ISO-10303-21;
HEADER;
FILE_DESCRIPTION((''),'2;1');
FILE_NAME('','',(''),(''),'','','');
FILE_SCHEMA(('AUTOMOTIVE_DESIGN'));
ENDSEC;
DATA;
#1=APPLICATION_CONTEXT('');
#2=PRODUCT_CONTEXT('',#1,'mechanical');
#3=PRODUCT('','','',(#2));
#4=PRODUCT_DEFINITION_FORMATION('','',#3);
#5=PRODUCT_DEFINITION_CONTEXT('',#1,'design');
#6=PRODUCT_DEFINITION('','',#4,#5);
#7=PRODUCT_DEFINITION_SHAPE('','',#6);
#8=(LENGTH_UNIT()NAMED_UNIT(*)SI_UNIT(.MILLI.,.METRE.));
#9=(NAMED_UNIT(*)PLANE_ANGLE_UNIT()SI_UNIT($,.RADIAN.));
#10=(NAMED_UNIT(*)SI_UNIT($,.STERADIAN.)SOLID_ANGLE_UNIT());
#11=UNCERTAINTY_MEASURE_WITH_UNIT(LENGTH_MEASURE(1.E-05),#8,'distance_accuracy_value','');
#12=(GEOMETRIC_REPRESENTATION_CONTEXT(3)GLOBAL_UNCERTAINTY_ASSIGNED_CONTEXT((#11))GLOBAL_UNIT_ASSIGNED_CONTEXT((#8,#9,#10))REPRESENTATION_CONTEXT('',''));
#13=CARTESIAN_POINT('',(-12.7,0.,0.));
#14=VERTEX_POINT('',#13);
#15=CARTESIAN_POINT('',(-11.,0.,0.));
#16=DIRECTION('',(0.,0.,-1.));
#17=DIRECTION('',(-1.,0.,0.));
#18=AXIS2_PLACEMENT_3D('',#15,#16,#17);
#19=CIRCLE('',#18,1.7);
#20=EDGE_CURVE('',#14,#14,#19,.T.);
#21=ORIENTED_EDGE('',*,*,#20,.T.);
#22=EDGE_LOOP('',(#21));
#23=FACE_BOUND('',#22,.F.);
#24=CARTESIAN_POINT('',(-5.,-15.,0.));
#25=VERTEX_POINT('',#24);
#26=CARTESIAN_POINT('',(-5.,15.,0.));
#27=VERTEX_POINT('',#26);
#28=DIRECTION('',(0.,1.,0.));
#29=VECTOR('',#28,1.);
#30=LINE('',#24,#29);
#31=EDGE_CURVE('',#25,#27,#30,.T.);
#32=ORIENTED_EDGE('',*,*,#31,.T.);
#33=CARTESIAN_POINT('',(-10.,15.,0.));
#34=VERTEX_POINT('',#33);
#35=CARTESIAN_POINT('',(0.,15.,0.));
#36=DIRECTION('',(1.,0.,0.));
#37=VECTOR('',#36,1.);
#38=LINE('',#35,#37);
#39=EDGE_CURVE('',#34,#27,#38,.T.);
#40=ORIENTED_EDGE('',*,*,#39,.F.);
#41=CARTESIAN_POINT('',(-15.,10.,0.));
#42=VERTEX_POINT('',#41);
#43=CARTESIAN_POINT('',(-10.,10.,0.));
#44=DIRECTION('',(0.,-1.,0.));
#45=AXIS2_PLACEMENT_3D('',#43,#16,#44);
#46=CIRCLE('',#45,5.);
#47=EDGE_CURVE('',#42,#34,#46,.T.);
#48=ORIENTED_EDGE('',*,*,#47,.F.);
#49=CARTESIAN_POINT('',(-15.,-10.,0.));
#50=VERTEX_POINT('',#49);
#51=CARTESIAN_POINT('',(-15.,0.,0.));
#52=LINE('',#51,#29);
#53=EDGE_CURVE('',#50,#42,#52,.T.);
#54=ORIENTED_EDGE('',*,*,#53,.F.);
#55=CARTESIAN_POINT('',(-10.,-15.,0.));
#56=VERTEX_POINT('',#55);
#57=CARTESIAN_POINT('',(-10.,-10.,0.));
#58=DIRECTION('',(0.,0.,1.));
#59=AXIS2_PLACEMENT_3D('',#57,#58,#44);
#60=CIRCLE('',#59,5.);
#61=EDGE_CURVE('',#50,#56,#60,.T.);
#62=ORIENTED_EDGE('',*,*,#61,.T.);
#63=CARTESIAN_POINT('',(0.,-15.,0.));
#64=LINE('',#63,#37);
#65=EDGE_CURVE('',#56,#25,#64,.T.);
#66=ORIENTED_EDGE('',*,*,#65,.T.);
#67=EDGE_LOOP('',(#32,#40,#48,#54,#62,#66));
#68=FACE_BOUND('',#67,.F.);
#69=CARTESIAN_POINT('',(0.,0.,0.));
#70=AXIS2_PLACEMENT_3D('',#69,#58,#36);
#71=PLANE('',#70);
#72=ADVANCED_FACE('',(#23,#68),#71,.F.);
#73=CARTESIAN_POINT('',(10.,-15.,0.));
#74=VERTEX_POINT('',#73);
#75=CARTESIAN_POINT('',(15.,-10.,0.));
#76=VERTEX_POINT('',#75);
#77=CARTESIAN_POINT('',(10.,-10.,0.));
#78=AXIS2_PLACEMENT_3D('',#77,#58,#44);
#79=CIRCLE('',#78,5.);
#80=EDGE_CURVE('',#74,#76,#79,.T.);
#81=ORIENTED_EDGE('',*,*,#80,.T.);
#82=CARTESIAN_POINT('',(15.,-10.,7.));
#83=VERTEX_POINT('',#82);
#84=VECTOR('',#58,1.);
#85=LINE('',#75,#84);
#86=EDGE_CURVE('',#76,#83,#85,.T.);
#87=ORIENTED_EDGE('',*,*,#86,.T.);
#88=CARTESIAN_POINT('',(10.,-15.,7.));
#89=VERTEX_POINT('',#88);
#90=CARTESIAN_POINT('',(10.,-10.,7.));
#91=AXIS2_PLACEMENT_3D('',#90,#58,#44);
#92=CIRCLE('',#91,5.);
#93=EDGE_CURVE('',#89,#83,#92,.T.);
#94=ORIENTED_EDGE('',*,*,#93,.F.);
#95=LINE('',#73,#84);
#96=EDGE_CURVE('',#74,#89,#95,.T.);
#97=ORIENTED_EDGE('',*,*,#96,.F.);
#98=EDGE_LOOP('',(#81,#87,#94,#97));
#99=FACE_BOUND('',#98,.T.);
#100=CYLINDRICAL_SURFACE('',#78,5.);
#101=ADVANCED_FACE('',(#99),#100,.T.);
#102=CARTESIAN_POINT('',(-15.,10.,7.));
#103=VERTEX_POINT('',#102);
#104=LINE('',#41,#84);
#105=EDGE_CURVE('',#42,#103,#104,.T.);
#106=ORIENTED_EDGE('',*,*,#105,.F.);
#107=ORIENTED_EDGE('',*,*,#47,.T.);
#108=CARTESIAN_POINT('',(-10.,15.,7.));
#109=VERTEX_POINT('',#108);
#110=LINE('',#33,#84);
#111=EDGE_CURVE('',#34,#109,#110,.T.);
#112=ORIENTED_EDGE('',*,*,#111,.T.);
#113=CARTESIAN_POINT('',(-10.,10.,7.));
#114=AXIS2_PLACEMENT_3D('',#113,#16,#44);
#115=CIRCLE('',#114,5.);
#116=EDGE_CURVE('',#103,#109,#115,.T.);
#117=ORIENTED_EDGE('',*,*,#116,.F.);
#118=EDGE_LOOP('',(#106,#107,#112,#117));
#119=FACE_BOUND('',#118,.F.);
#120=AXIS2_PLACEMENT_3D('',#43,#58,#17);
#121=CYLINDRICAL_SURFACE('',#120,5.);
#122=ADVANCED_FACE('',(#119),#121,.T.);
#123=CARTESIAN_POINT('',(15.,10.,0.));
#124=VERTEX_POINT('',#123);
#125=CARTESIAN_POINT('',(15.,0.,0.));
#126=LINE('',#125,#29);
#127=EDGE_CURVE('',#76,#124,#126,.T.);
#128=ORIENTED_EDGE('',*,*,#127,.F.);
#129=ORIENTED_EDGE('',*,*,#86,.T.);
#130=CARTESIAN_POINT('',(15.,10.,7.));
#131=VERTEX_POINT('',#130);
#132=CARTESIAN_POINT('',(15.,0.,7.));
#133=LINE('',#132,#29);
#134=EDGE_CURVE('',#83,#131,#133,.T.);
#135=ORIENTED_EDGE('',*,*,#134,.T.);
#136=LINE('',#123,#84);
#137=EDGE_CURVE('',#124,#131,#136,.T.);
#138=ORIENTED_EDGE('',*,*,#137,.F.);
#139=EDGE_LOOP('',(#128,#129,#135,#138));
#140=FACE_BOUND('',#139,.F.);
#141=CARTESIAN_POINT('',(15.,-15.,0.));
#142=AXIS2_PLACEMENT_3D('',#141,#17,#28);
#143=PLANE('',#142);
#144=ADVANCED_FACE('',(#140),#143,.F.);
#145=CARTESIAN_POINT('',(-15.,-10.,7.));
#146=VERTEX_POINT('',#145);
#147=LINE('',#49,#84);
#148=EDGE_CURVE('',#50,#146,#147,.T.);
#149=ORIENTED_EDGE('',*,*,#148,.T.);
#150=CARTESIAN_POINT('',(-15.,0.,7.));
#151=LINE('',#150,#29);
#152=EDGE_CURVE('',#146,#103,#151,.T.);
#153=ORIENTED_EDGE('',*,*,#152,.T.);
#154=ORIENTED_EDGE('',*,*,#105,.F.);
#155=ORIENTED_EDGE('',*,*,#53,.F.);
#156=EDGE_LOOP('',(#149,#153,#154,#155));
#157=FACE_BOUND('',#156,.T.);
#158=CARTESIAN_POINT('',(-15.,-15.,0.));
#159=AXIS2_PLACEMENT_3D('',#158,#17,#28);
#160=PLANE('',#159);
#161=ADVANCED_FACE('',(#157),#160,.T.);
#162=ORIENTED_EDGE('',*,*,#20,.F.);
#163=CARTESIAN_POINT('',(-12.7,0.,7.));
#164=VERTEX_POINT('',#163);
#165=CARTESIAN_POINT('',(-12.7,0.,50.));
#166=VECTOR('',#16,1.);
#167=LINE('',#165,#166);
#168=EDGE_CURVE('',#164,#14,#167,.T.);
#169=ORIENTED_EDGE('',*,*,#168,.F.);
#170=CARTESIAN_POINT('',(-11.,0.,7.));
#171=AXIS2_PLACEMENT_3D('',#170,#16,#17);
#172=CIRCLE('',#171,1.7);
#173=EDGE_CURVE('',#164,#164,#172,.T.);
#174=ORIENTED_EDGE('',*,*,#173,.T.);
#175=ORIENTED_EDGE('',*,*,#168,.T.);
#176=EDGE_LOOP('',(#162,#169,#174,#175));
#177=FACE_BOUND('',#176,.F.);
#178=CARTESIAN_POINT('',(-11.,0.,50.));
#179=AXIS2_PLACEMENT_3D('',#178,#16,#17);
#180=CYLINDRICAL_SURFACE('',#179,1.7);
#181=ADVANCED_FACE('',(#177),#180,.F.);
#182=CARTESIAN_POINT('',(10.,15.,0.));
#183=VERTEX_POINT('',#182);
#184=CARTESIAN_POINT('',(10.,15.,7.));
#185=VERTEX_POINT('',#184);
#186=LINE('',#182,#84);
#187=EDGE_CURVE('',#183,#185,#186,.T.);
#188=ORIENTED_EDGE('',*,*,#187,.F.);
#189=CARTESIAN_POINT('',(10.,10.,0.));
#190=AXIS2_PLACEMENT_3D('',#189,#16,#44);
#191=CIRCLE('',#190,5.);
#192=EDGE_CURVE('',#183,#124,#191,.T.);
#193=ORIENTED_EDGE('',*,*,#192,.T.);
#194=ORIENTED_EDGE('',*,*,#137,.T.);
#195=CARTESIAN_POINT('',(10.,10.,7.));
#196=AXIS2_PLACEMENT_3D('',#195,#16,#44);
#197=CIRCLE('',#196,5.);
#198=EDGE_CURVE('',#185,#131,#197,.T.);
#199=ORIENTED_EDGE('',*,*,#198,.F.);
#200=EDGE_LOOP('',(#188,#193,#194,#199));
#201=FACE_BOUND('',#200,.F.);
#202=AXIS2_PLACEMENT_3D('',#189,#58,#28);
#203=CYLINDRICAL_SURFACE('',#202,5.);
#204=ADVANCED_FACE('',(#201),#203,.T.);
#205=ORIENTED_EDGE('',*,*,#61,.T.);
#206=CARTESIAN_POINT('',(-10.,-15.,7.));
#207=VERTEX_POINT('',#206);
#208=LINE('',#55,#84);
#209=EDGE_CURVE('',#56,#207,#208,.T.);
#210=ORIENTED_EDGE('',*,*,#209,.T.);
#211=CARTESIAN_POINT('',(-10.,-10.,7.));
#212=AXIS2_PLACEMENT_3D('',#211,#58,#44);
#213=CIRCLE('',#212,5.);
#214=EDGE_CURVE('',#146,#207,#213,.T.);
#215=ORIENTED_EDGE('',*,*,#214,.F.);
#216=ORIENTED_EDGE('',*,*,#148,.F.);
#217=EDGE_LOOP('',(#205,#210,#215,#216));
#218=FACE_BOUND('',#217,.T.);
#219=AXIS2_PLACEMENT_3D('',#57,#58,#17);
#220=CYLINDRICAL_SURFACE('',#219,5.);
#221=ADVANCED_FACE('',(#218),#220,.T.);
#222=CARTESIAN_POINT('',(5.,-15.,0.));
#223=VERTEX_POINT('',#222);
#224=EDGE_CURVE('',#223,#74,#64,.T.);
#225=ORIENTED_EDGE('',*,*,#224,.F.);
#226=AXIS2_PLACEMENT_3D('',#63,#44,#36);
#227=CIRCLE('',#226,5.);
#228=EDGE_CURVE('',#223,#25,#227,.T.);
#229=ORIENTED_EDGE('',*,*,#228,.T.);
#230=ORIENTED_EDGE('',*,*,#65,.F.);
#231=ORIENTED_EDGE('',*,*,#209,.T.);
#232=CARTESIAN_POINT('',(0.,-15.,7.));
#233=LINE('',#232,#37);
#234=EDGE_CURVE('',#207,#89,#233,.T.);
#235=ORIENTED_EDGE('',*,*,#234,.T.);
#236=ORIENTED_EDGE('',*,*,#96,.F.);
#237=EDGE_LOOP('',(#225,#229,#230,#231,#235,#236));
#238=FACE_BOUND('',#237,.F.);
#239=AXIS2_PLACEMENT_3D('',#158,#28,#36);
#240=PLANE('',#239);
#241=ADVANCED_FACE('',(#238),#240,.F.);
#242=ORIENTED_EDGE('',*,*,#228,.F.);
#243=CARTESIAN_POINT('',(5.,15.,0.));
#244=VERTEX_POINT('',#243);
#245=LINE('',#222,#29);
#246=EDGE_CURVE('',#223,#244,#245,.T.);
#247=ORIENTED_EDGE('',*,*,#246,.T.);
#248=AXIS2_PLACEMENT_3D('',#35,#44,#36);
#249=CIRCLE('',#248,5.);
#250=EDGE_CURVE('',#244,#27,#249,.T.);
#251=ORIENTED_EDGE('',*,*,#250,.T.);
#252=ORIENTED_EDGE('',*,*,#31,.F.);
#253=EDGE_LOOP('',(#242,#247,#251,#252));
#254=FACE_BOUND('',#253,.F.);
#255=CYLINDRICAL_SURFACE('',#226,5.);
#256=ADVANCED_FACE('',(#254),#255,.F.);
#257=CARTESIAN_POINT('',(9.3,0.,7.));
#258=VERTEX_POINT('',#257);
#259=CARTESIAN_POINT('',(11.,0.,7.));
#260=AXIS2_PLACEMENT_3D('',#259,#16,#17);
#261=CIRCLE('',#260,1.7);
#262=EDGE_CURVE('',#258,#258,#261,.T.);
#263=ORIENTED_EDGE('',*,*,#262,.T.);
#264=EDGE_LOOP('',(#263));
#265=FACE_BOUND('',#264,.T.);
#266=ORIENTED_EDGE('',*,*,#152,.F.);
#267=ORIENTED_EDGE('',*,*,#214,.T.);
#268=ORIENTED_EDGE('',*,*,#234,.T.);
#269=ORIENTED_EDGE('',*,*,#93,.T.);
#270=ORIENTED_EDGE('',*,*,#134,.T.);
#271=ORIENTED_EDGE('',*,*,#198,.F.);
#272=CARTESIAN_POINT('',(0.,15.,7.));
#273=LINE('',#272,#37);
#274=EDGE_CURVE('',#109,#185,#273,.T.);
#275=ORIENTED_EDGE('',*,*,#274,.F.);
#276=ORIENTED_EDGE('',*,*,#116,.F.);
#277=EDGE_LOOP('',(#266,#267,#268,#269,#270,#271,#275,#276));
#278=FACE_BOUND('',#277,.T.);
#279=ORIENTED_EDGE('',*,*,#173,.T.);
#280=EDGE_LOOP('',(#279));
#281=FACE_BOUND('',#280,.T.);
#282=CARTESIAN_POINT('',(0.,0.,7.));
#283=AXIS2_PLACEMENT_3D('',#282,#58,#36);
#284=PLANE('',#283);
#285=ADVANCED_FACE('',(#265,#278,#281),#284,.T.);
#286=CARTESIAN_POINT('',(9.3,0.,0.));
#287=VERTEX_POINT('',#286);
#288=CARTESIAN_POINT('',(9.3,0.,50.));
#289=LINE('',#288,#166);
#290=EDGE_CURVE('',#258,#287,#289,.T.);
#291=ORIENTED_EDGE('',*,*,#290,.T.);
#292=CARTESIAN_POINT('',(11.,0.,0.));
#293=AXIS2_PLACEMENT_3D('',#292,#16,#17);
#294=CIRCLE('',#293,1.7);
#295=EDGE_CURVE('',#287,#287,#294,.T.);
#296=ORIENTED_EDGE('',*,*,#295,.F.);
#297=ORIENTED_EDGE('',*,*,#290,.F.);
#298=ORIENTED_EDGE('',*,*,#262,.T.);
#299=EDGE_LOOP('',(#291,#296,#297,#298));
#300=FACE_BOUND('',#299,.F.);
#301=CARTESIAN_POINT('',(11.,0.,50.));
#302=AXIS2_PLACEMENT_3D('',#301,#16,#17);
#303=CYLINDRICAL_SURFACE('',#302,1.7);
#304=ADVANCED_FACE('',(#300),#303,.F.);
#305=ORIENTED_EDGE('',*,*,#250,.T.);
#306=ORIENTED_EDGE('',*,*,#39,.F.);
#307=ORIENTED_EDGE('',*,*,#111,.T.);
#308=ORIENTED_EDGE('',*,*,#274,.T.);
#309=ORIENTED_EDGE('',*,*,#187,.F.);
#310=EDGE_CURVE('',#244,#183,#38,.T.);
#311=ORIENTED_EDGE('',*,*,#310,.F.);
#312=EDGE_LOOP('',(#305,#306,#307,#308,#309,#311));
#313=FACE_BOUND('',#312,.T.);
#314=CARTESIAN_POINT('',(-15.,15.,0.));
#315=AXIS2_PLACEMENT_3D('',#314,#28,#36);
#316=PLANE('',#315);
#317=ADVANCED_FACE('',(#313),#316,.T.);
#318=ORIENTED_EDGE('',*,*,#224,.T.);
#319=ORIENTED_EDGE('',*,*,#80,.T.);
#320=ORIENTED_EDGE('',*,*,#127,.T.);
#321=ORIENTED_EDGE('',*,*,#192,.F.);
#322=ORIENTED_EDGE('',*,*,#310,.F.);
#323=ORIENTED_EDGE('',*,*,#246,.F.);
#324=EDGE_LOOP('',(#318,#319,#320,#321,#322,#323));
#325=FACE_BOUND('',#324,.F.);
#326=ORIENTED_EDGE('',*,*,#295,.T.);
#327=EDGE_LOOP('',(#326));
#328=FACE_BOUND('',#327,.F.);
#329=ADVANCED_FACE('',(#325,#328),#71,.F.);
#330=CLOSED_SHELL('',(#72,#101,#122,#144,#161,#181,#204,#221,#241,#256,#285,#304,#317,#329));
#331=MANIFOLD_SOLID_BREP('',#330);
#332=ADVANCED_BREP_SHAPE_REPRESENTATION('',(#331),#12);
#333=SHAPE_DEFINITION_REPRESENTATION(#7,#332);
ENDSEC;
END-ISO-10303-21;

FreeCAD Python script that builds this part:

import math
import FreeCAD as App
import Part
import Sketcher

V = App.Vector


def edges_at(feature, points):
    """Names of the edges that pass closest to the given points."""
    edges = feature.Shape.Edges
    near = lambda p: min(range(len(edges)), key=lambda i: edges[i].distToShape(Part.Vertex(*p))[0])
    return sorted({f"Edge{near(p) + 1}" for p in points})


def add_polygon(sketch, points):
    """Adds a closed chain of lines whose ends are joined by coincident constraints."""
    first, n = sketch.GeometryCount, len(points)
    for a, b in zip(points, points[1:] + points[:1]):
        sketch.addGeometry(Part.LineSegment(App.Vector(*a, 0), App.Vector(*b, 0)), False)
    for i in range(n):
        sketch.addConstraint(Sketcher.Constraint("Coincident", first + i, 2, first + (i + 1) % n, 1))

doc = App.newDocument("Part")
body = doc.addObject("PartDesign::Body", "Body")

sketch1 = doc.addObject("Sketcher::SketchObject", "Sketch")
body.addObject(sketch1)
sketch1.AttachmentSupport = (doc.XY_Plane, [""])
sketch1.MapMode = "FlatFace"
add_polygon(sketch1, [(-15, 15), (-15, -15), (15, -15), (15, 15)])
sketch1.addConstraint([
    Sketcher.Constraint("Vertical", 0),
    Sketcher.Constraint("Horizontal", 1),
    Sketcher.Constraint("Vertical", 2),
    Sketcher.Constraint("Horizontal", 3),
    Sketcher.Constraint("Symmetric", 0, 2, 2, 2, -1, 1),
    Sketcher.Constraint("Equal", 3, 0),
    Sketcher.Constraint("DistanceX", 1, 1, 1, 2, 30.0),
])
pad1 = doc.addObject("PartDesign::Pad", "Pad")
body.addObject(pad1)
pad1.Profile = sketch1
pad1.Length = 7

sketch2 = doc.addObject("Sketcher::SketchObject", "Sketch001")
body.addObject(sketch2)
sketch2.AttachmentSupport = (doc.XY_Plane, [""])
sketch2.MapMode = "FlatFace"
sketch2.AttachmentOffset = App.Placement(V(0, 0, 7), App.Rotation())
sketch2.addGeometry([
    Part.Circle(V(-11, 0, 0), V(0, 0, 1), 1.7),
    Part.Circle(V(11, 0, 0), V(0, 0, 1), 1.7),
], False)
sketch2.addConstraint([
    Sketcher.Constraint("Equal", 0, 1),
    Sketcher.Constraint("Symmetric", 0, 3, 1, 3, -1, 1),
    Sketcher.Constraint("PointOnObject", 0, 3, -1),
    Sketcher.Constraint("Diameter", 0, 3.4),
    Sketcher.Constraint("DistanceX", 0, 3, -1, 1, 11.0),
])
doc.recompute()
hole = doc.addObject("PartDesign::Hole", "Hole")
body.addObject(hole)
hole.Profile = sketch2
hole.ThreadType = "None"
hole.Diameter = 3.4
hole.DepthType = "ThroughAll"

sketch3 = doc.addObject("Sketcher::SketchObject", "Sketch002")
body.addObject(sketch3)
sketch3.AttachmentSupport = (doc.XZ_Plane, [""])
sketch3.MapMode = "FlatFace"
sketch3.AttachmentOffset = App.Placement(V(0, 0, 15), App.Rotation())
sketch3.addGeometry([
    Part.LineSegment(V(-5, 0, 0), V(5, 0, 0)),
    Part.ArcOfCircle(Part.Circle(V(0, 0, 0), V(0, 0, 1), 5), math.radians(0), math.radians(180)),
], False)
sketch3.addConstraint([
    Sketcher.Constraint("Coincident", 0, 1, 1, 2),
    Sketcher.Constraint("Coincident", 1, 1, 0, 2),
    Sketcher.Constraint("Horizontal", 0),
    Sketcher.Constraint("Coincident", 1, 3, -1, 1),
    Sketcher.Constraint("PointOnObject", 0, 1, -1),
    Sketcher.Constraint("Radius", 1, 5.0),
])
pocket1 = doc.addObject("PartDesign::Pocket", "Pocket")
body.addObject(pocket1)
pocket1.Profile = sketch3
pocket1.Type = "ThroughAll"
doc.recompute()

fillet = doc.addObject("PartDesign::Fillet", "Fillet")
body.addObject(fillet)
fillet.Base = (pocket1, edges_at(pocket1, [
    (15, -15, 3.5),
    (-15, -15, 3.5),
    (15, 15, 3.5),
    (-15, 15, 3.5),
]))
fillet.Radius = 5

doc.recompute()
